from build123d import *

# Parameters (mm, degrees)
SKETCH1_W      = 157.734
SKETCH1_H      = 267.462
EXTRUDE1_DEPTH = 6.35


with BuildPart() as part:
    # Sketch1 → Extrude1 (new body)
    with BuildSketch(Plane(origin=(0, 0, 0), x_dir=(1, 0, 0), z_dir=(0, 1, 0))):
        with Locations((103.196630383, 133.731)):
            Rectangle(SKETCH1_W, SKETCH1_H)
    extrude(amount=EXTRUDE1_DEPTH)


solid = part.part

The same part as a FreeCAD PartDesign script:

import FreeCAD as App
import Part
import Sketcher

V = App.Vector
Q = App.Units.Quantity

doc = App.newDocument("Part")
body = doc.addObject("PartDesign::Body", "Body")

# Sketch on XZ plane
sketch1 = body.newObject("Sketcher::SketchObject", "Sketch")
sketch1.AttachmentSupport = (doc.getObject("XZ_Plane"), [""])
sketch1.MapMode = "FlatFace"
sketch1.addGeometry(Part.LineSegment(V(24, -267, 0), V(24, 0, 0)), False)
sketch1.addGeometry(Part.LineSegment(V(24, 0, 0), V(182, 0, 0)), False)
sketch1.addGeometry(Part.LineSegment(V(182, 0, 0), V(182, -267, 0)), False)
sketch1.addGeometry(Part.LineSegment(V(182, -267, 0), V(24, -267, 0)), False)
sketch1.addConstraint(Sketcher.Constraint("Coincident", 0, 2, 1, 1))
sketch1.addConstraint(Sketcher.Constraint("Coincident", 1, 2, 2, 1))
sketch1.addConstraint(Sketcher.Constraint("Coincident", 2, 2, 3, 1))
sketch1.addConstraint(Sketcher.Constraint("Coincident", 3, 2, 0, 1))
sketch1.addConstraint(Sketcher.Constraint("Vertical", 0))
sketch1.addConstraint(Sketcher.Constraint("Horizontal", 1))
sketch1.addConstraint(Sketcher.Constraint("Vertical", 2))
sketch1.addConstraint(Sketcher.Constraint("Horizontal", 3))
sketch1.addConstraint(Sketcher.Constraint("PointOnObject", 0, 2, -1))
sketch1.addConstraint(Sketcher.Constraint("DistanceX", 1, 1, 1, 2, Q("6.21 in")))
sketch1.addConstraint(Sketcher.Constraint("DistanceY", 0, 1, 0, 2, Q("10.53 in")))
sketch1.addConstraint(Sketcher.Constraint("DistanceX", -1, 1, 0, 2, Q("24.32963 mm")))
pad1 = body.newObject("PartDesign::Pad", "Pad")
pad1.Profile = sketch1
pad1.Length = Q("0.25 in")
pad1.Reversed = True

doc.recompute()
